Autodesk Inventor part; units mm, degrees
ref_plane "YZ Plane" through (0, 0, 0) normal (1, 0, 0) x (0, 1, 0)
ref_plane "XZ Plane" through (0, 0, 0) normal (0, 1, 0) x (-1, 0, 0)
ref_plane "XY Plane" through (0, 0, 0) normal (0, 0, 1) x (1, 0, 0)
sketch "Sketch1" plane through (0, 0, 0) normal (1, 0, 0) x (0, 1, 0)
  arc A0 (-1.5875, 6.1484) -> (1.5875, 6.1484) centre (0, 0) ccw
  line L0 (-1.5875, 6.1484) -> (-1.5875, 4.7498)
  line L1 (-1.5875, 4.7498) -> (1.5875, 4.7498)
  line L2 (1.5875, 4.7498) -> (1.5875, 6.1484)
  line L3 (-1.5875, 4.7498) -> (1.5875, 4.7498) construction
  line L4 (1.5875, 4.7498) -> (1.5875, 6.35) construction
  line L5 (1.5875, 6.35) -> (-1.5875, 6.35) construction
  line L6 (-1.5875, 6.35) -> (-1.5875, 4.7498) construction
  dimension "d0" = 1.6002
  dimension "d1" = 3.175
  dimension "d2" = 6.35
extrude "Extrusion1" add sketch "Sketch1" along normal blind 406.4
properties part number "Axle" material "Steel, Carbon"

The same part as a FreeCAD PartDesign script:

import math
import FreeCAD as App
import Part
import Sketcher
from FreeCAD import Vector
Q = App.Units.Quantity

doc = App.newDocument("Part")
body = doc.addObject("PartDesign::Body", "Body")

# Sketch on YZ plane
sketch1 = body.newObject("Sketcher::SketchObject", "Sketch")
sketch1.AttachmentSupport = (doc.getObject("YZ_Plane"), [""])
sketch1.MapMode = "FlatFace"
sketch1.addGeometry([
    Part.LineSegment(Vector(-1.6, 4.7, 0), Vector(-1.6, 6.1, 0)),
    Part.ArcOfCircle(Part.Circle(Vector(0, 0, 0), Vector(0, 0, 1), 6.4), math.radians(104), math.radians(436)),
    Part.LineSegment(Vector(1.6, 6.1, 0), Vector(1.6, 4.7, 0)),
    Part.LineSegment(Vector(1.6, 4.7, 0), Vector(-1.6, 4.7, 0)),
], False)
sketch1.addConstraint([
    Sketcher.Constraint("Coincident", 0, 2, 1, 1),
    Sketcher.Constraint("Coincident", 1, 2, 2, 1),
    Sketcher.Constraint("Coincident", 2, 2, 3, 1),
    Sketcher.Constraint("Coincident", 3, 2, 0, 1),
    Sketcher.Constraint("Vertical", 0),
    Sketcher.Constraint("Vertical", 2),
    Sketcher.Constraint("Horizontal", 3),
    Sketcher.Constraint("Coincident", 1, 3, -1, 1),
    Sketcher.Constraint("Horizontal", 0, 2, 1, 2),
    Sketcher.Constraint("Radius", 1, Q("0.25 in")),
    Sketcher.Constraint("DistanceX", 3, 2, 3, 1, Q("0.125 in")),
    Sketcher.Constraint("DistanceY", -1, 1, 2, 2, Q("0.187 in")),
])
pad1 = body.newObject("PartDesign::Pad", "Pad")
pad1.Profile = sketch1
pad1.Length = Q("16 in")

doc.recompute()
